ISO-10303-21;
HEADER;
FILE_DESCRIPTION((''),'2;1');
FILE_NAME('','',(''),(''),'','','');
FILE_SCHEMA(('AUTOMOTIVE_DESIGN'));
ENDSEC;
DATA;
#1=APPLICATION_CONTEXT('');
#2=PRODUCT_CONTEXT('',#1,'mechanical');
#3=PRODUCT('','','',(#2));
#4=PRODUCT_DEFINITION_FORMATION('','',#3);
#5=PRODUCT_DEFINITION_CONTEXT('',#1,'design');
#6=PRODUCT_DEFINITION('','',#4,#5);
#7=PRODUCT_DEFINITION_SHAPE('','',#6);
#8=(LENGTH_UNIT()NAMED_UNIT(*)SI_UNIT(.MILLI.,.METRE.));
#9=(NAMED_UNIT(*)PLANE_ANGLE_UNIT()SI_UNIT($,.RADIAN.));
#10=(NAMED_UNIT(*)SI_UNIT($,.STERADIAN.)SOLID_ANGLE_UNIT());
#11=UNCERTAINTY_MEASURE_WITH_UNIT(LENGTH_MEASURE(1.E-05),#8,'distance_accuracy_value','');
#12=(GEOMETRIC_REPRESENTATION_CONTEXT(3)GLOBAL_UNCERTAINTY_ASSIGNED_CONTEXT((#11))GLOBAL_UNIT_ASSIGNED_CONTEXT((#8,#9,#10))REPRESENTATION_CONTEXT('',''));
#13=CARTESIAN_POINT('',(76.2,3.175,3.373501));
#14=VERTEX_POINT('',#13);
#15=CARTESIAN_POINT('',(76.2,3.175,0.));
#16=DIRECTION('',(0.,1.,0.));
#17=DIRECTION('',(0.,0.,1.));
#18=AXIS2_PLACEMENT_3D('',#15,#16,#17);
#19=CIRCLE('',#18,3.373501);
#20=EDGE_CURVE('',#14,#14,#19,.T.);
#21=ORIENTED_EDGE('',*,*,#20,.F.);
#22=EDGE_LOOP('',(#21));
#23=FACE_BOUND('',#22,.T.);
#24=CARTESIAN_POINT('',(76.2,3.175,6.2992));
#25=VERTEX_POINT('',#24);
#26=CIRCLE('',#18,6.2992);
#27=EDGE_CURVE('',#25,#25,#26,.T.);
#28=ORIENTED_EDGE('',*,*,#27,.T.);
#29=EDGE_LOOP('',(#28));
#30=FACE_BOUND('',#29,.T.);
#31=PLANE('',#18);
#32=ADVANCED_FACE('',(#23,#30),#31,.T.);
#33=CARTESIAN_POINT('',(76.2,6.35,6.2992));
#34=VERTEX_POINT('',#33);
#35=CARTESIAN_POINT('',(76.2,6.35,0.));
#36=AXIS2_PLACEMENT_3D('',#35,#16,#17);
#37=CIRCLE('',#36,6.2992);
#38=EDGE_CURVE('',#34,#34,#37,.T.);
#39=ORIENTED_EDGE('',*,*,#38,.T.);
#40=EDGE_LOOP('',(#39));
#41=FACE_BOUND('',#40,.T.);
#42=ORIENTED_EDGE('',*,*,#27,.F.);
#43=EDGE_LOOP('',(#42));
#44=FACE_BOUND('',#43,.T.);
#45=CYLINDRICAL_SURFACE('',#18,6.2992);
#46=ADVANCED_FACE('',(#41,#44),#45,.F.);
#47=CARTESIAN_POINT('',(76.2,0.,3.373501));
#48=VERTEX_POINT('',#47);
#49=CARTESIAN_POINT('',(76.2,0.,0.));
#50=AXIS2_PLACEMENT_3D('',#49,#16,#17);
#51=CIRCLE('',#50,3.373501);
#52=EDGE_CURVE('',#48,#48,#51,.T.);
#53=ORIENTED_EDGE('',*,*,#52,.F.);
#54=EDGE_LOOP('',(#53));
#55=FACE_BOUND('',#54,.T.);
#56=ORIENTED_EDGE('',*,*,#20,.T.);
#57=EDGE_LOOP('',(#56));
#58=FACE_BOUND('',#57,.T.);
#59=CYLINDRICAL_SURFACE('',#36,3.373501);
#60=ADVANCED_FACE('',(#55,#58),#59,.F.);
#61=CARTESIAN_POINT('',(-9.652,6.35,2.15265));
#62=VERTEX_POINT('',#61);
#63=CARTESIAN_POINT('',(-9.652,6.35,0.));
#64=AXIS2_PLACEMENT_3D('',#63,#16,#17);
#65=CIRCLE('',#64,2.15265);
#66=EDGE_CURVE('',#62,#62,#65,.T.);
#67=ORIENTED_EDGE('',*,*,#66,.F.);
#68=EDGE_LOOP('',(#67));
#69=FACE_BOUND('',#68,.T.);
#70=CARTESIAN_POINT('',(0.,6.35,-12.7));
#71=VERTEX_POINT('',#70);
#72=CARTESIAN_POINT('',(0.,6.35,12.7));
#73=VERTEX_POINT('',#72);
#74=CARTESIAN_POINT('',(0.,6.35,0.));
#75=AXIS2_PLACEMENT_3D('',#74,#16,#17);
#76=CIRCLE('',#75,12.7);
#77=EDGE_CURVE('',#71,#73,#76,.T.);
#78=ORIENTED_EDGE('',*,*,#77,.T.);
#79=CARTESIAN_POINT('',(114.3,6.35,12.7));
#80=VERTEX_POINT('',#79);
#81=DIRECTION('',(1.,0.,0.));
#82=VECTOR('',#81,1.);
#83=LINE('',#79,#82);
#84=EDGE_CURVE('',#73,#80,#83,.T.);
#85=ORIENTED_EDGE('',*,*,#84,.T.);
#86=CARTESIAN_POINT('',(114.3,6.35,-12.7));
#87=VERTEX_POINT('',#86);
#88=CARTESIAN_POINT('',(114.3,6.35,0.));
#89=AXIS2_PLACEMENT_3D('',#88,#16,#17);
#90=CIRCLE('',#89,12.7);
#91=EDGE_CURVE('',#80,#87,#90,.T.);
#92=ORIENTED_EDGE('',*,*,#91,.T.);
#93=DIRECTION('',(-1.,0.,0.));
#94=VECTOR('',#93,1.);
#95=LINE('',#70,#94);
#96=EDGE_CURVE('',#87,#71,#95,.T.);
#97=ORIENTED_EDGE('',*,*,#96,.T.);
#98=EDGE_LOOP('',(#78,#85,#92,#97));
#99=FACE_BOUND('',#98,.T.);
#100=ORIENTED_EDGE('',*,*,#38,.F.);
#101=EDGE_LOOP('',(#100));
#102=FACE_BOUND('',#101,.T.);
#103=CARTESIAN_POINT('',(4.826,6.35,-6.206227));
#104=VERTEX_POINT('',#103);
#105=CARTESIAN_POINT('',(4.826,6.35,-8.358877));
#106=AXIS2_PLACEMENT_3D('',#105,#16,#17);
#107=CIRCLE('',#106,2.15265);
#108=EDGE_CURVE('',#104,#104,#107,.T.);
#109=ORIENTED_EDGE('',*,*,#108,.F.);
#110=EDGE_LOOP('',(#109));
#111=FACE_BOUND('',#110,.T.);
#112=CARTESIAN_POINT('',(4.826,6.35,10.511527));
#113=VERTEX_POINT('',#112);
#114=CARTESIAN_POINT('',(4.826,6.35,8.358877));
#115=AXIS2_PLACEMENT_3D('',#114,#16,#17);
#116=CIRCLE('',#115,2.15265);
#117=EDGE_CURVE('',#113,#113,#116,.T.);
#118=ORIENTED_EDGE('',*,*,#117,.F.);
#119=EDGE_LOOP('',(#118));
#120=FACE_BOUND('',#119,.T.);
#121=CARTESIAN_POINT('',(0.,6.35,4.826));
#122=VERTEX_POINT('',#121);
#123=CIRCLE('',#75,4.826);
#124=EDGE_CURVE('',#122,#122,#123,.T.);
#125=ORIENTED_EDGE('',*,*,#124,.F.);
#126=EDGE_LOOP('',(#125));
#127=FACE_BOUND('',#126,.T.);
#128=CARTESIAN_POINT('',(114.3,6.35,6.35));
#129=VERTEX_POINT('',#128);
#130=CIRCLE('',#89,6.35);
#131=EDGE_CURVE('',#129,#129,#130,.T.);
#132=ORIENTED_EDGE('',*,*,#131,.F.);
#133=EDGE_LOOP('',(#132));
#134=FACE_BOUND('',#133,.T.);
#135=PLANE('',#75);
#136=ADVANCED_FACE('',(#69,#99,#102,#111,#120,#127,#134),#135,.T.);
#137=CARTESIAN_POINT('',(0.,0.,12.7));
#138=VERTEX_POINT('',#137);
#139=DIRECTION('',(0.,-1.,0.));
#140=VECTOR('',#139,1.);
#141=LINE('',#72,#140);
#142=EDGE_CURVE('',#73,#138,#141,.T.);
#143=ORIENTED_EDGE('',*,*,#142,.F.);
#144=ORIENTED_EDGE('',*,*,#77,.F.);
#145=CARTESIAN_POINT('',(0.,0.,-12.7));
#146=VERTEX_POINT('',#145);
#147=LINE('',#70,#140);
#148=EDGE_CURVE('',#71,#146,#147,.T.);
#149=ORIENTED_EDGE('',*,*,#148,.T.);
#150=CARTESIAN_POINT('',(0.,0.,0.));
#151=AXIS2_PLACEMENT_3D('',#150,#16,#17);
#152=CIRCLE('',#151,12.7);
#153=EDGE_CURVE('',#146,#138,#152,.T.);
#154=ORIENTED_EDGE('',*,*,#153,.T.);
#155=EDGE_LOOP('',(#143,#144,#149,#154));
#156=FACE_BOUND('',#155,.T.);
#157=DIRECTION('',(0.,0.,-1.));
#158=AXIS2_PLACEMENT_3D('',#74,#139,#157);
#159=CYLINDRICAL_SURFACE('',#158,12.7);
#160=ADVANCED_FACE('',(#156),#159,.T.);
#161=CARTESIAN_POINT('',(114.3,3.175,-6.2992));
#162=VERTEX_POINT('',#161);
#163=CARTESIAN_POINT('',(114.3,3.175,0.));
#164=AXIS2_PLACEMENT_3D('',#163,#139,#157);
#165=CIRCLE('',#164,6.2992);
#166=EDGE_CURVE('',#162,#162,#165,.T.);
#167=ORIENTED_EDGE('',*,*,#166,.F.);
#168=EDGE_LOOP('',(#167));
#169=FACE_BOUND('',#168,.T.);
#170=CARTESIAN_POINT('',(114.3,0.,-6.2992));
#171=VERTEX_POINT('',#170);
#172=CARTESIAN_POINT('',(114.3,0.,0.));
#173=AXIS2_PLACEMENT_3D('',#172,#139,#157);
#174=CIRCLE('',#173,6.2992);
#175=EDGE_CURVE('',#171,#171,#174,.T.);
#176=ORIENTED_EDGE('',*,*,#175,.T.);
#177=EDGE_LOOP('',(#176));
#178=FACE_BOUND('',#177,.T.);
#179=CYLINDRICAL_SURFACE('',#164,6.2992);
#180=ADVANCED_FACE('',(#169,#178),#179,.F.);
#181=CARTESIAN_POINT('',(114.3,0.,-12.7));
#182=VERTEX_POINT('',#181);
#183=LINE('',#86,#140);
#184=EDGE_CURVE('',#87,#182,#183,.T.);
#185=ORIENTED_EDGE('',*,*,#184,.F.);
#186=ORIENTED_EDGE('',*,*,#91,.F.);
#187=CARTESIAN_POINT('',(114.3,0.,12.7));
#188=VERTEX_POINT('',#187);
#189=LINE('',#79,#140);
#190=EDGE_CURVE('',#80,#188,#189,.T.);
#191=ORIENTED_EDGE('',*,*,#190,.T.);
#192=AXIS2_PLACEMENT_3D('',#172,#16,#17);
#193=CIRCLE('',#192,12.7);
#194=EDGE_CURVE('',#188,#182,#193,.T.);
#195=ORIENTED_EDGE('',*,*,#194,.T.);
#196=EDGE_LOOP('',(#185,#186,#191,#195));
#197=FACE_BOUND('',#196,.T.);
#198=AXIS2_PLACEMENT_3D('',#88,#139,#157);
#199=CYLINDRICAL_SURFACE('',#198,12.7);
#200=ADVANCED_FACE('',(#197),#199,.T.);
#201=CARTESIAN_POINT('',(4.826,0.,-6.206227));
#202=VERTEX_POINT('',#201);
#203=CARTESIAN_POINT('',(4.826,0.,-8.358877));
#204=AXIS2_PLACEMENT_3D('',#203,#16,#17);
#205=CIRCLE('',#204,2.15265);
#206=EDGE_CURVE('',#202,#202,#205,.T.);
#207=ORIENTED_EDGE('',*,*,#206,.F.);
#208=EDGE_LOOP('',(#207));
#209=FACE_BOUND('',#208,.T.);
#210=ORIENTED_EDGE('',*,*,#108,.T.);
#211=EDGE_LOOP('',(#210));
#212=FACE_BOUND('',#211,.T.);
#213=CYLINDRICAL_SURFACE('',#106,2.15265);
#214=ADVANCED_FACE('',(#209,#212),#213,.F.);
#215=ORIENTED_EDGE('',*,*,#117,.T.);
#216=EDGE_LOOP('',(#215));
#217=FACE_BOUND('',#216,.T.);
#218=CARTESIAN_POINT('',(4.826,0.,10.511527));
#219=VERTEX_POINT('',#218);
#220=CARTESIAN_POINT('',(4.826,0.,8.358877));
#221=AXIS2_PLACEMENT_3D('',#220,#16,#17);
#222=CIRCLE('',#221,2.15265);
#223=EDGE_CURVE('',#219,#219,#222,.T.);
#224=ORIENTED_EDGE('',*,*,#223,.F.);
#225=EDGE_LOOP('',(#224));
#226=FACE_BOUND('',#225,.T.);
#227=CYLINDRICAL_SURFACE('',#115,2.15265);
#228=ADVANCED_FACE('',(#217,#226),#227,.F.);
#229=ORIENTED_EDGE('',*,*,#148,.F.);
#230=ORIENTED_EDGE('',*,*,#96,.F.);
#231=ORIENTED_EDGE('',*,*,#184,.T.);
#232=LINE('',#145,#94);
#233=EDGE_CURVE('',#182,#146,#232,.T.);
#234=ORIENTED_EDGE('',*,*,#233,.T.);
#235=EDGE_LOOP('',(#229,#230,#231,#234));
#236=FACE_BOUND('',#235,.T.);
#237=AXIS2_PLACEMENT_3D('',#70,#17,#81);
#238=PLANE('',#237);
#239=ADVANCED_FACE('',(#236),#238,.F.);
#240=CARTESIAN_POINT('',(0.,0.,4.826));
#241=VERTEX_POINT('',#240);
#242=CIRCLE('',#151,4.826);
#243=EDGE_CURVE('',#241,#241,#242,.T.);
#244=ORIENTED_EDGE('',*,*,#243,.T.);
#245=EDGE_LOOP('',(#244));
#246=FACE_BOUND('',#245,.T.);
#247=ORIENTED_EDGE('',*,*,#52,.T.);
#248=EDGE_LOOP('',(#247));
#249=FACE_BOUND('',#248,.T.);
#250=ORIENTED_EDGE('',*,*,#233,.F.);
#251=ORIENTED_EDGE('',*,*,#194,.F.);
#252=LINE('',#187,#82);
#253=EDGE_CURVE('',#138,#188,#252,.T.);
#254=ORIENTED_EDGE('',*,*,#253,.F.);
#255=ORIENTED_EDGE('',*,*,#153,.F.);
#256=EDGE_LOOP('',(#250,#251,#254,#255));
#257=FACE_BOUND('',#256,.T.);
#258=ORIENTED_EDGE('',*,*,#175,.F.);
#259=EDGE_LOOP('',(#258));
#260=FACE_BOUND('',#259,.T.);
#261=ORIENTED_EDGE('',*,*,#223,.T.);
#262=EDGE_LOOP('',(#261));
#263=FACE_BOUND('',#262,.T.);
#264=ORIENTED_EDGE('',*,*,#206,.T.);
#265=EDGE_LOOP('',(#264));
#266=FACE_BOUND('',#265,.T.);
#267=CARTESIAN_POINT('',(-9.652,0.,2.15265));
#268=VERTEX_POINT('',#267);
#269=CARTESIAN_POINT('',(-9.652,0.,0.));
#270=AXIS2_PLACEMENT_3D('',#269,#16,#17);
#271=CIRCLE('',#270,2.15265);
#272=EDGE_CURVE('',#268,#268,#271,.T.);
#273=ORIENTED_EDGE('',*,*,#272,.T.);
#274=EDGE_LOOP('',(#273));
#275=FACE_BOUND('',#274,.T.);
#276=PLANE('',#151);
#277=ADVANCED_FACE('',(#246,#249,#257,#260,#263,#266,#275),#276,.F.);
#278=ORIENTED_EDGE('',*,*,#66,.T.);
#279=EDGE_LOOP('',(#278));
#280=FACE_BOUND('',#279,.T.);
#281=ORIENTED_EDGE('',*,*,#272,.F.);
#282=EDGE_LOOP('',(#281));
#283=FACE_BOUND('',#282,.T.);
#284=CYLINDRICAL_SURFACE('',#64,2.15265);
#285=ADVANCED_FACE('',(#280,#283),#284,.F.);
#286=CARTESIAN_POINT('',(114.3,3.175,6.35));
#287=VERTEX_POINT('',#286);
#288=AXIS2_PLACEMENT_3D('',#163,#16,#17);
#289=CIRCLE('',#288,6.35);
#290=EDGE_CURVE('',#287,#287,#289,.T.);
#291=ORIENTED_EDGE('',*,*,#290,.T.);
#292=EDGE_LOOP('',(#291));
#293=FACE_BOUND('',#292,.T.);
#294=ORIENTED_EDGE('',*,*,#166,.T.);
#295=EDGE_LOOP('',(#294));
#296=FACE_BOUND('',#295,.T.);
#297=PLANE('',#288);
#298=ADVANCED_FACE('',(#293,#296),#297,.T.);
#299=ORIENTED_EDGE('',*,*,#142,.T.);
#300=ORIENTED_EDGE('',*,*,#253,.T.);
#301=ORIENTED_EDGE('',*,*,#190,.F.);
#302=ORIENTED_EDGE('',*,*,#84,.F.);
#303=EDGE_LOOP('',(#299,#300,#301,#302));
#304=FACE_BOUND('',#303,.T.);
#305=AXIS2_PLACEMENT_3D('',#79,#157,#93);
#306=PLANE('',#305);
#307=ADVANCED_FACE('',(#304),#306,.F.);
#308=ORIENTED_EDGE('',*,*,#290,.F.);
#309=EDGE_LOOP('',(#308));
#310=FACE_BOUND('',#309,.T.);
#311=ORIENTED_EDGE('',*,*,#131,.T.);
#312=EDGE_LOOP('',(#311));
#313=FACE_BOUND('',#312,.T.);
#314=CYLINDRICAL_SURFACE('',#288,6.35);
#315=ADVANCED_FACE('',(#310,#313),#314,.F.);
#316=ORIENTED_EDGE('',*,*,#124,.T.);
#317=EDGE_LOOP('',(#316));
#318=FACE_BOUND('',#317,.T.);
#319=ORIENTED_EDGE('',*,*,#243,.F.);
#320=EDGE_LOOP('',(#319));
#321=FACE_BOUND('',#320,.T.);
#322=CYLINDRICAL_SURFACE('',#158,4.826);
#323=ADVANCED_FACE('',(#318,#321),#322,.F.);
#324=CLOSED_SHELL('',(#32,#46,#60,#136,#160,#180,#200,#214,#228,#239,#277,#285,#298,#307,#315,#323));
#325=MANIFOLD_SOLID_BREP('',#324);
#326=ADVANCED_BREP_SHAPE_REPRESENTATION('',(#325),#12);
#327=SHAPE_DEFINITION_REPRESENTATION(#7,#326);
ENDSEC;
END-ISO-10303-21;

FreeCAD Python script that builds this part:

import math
import FreeCAD as App
import Part
import Sketcher

V = App.Vector
Q = App.Units.Quantity

doc = App.newDocument("Part")
params = doc.addObject("Spreadsheet::Sheet", "Params")
for row, (alias, value) in enumerate([
    ("sketch1_radius", "0.5 in"),
    ("sketch1_diameter", "0.38 in"),
    ("sketch1_width", "4.5 in"),
    ("pad1_length", "0.25 in"),
    ("hole_diameter", "0.1695 in"),
    ("hole_depth", "1 in"),
    ("sketch3_diameter", "0.5 in"),
    ("sketch3_diameter2", "0.496 in"),
    ("pocket1_length", "0.125 in"),
    ("sketch4_diameter", "0.496 in"),
    ("pocket2_length", "0.125 in"),
    ("hole2_diameter", "6.747002 mm"),
], start=1):
    params.set(f"A{row}", alias)
    params.set(f"B{row}", "=" + value)
    params.setAlias(f"B{row}", alias)

body = doc.addObject("PartDesign::Body", "Body")

sketch1 = doc.addObject("Sketcher::SketchObject", "Sketch")
body.addObject(sketch1)
sketch1.AttachmentSupport = (doc.XZ_Plane, [""])
sketch1.MapMode = "FlatFace"
sketch1.addGeometry([
    Part.LineSegment(V(114.3, -12.7, 0), V(0, -12.7, 0)),
    Part.ArcOfCircle(Part.Circle(V(0, 0, 0), V(0, 0, 1), 12.7), math.radians(90), math.radians(270)),
    Part.LineSegment(V(0, 12.7, 0), V(114.3, 12.7, 0)),
    Part.ArcOfCircle(Part.Circle(V(114.3, 0, 0), V(0, 0, 1), 12.7), math.radians(-90), math.radians(90)),
    Part.Circle(V(0, 0, 0), V(0, 0, 1), 4.826),
], False)
sketch1.addConstraint([
    Sketcher.Constraint("Tangent", 0, 2, 1, 2),
    Sketcher.Constraint("Tangent", 1, 1, 2, 1),
    Sketcher.Constraint("Tangent", 2, 2, 3, 2),
    Sketcher.Constraint("Tangent", 3, 1, 0, 1),
    Sketcher.Constraint("Horizontal", 0),
    Sketcher.Constraint("Horizontal", 2),
    Sketcher.Constraint("Coincident", 1, 3, -1, 1),
    Sketcher.Constraint("Coincident", 4, 3, -1, 1),
    Sketcher.Constraint("Radius", 1, Q("0.5 in")),
    Sketcher.Constraint("Diameter", 4, Q("0.38 in")),
    Sketcher.Constraint("DistanceX", 0, 2, 0, 1, Q("4.5 in")),
])
sketch1.setExpression("Constraints[8]", "Params.sketch1_radius")
sketch1.setExpression("Constraints[9]", "Params.sketch1_diameter")
sketch1.setExpression("Constraints[10]", "Params.sketch1_width")
pad1 = doc.addObject("PartDesign::Pad", "Pad")
body.addObject(pad1)
pad1.Profile = sketch1
pad1.setExpression("Length", "Params.pad1_length")
pad1.Reversed = True

sketch2 = doc.addObject("Sketcher::SketchObject", "Sketch001")
body.addObject(sketch2)
sketch2.AttachmentSupport = (doc.XZ_Plane, [""])
sketch2.MapMode = "FlatFace"
sketch2.AttachmentOffset = App.Placement(V(0, 0, -0.25 * 25.4), App.Rotation())
sketch2.addGeometry([
    Part.Circle(V(-9.652, 0, 0), V(0, 0, 1), 2.15265),
    Part.Circle(V(4.826, -8.358877, 0), V(0, 0, 1), 2.15265),
    Part.Circle(V(4.826, 8.358877, 0), V(0, 0, 1), 2.15265),
], False)
sketch2.addConstraint([
    Sketcher.Constraint("Equal", 0, 1),
    Sketcher.Constraint("Equal", 1, 2),
    Sketcher.Constraint("Symmetric", 1, 3, 2, 3, -1),
    Sketcher.Constraint("PointOnObject", 0, 3, -1),
    Sketcher.Constraint("Diameter", 0, Q("0.1695 in")),
    Sketcher.Constraint("DistanceX", 0, 3, -1, 1, Q("0.38 in")),
    Sketcher.Constraint("DistanceX", -1, 1, 1, 3, Q("0.19 in")),
    Sketcher.Constraint("DistanceY", 1, 3, -1, 1, 8.358877),
])
doc.recompute()
hole = doc.addObject("PartDesign::Hole", "Hole")
body.addObject(hole)
hole.Profile = sketch2
hole.ThreadType = "None"
hole.setExpression("Diameter", "Params.hole_diameter")
hole.DepthType = "Dimension"
hole.setExpression("Depth", "Params.hole_depth")
hole.DrillPoint = "Angled"
hole.DrillPointAngle = 118
hole.Reversed = True

sketch3 = doc.addObject("Sketcher::SketchObject", "Sketch002")
body.addObject(sketch3)
sketch3.AttachmentSupport = (doc.XZ_Plane, [""])
sketch3.MapMode = "FlatFace"
sketch3.AttachmentOffset = App.Placement(V(0, 0, -0.25 * 25.4), App.Rotation())
sketch3.addGeometry([
    Part.Circle(V(76.2, 0, 0), V(0, 0, 1), 6.2992),
    Part.Circle(V(114.3, 0, 0), V(0, 0, 1), 6.35),
], False)
sketch3.addConstraint([
    Sketcher.Constraint("PointOnObject", 0, 3, -1),
    Sketcher.Constraint("PointOnObject", 1, 3, -1),
    Sketcher.Constraint("Diameter", 1, Q("0.5 in")),
    Sketcher.Constraint("Diameter", 0, Q("0.496 in")),
    Sketcher.Constraint("DistanceX", -1, 1, 0, 3, Q("3 in")),
    Sketcher.Constraint("DistanceX", -1, 1, 1, 3, Q("4.5 in")),
])
sketch3.setExpression("Constraints[2]", "Params.sketch3_diameter")
sketch3.setExpression("Constraints[3]", "Params.sketch3_diameter2")
pocket1 = doc.addObject("PartDesign::Pocket", "Pocket")
body.addObject(pocket1)
pocket1.Profile = sketch3
pocket1.setExpression("Length", "Params.pocket1_length")
pocket1.Reversed = True

sketch4 = doc.addObject("Sketcher::SketchObject", "Sketch003")
body.addObject(sketch4)
sketch4.AttachmentSupport = (doc.XZ_Plane, [""])
sketch4.MapMode = "FlatFace"
sketch4.addGeometry(Part.Circle(V(114.3, 0, 0), V(0, 0, 1), 6.2992), False)
sketch4.addConstraint([
    Sketcher.Constraint("PointOnObject", 0, 3, -1),
    Sketcher.Constraint("Diameter", 0, Q("0.496 in")),
    Sketcher.Constraint("DistanceX", -1, 1, 0, 3, Q("4.5 in")),
])
sketch4.setExpression("Constraints[1]", "Params.sketch4_diameter")
pocket2 = doc.addObject("PartDesign::Pocket", "Pocket001")
body.addObject(pocket2)
pocket2.Profile = sketch4
pocket2.setExpression("Length", "Params.pocket2_length")

sketch5 = doc.addObject("Sketcher::SketchObject", "Sketch004")
body.addObject(sketch5)
sketch5.AttachmentSupport = (doc.XZ_Plane, [""])
sketch5.MapMode = "FlatFace"
sketch5.AttachmentOffset = App.Placement(V(0, 0, -0.25 * 25.4), App.Rotation())
sketch5.addGeometry([
    Part.Circle(V(76.2, 0, 0), V(0, 0, 1), 3.373501),
    Part.Circle(V(114.3, 0, 0), V(0, 0, 1), 3.373501),
], False)
sketch5.addConstraint([
    Sketcher.Constraint("Equal", 0, 1),
    Sketcher.Constraint("PointOnObject", 0, 3, -1),
    Sketcher.Constraint("PointOnObject", 1, 3, -1),
    Sketcher.Constraint("DistanceX", -1, 1, 0, 3, Q("3 in")),
    Sketcher.Constraint("DistanceX", -1, 1, 1, 3, Q("4.5 in")),
    Sketcher.Constraint("Diameter", 0, 6.747002),
])
doc.recompute()
hole2 = doc.addObject("PartDesign::Hole", "Hole001")
body.addObject(hole2)
hole2.Profile = sketch5
hole2.ThreadType = "None"
hole2.setExpression("Diameter", "Params.hole2_diameter")
hole2.DepthType = "ThroughAll"
hole2.Reversed = True

doc.recompute()
